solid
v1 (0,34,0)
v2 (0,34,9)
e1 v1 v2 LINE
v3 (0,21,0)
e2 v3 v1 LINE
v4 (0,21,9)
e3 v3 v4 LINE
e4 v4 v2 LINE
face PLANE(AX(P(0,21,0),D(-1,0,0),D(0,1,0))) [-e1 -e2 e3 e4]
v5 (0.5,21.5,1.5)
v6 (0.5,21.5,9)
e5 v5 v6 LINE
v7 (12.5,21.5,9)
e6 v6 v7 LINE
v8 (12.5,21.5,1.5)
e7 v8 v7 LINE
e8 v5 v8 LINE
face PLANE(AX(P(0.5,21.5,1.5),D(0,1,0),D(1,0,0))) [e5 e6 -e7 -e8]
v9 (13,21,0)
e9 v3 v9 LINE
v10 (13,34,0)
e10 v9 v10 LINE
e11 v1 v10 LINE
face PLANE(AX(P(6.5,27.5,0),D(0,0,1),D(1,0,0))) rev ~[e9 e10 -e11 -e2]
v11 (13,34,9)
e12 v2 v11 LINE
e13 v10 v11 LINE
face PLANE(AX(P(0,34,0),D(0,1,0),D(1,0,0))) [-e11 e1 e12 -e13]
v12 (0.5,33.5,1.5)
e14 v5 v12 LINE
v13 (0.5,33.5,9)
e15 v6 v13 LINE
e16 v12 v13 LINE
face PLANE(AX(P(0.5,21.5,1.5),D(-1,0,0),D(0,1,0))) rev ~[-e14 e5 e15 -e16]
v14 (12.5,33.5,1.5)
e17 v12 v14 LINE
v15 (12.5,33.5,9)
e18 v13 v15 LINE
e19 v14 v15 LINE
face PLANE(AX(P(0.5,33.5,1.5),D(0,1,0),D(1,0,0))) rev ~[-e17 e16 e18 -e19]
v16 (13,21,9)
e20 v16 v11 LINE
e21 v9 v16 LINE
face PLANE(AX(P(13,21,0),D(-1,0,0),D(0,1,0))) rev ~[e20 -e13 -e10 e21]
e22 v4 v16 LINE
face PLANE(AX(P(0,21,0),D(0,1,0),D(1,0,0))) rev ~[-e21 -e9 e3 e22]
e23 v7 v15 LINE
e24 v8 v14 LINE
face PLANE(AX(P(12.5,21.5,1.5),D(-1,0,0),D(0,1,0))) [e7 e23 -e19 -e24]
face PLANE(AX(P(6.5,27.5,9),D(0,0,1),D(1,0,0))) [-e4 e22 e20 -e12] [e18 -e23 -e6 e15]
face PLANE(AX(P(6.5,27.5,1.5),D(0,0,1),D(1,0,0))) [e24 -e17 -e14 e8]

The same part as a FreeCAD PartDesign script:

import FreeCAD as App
import Part
import Sketcher
from FreeCAD import Vector
Q = App.Units.Quantity


def add_polygon(sketch, points):
    """Adds a closed chain of lines whose ends are joined by coincident constraints."""
    first, n = sketch.GeometryCount, len(points)
    for a, b in zip(points, points[1:] + points[:1]):
        sketch.addGeometry(Part.LineSegment(App.Vector(*a, 0), App.Vector(*b, 0)), False)
    for i in range(n):
        sketch.addConstraint(Sketcher.Constraint("Coincident", first + i, 2, first + (i + 1) % n, 1))

doc = App.newDocument("Part")
params = doc.addObject("Spreadsheet::Sheet", "Params")
for row, (alias, value) in enumerate([
    ("sketch1_width", "12 mm"),
    ("pad1_length", "7.5 mm"),
    ("sketch2_width", "13 mm"),
    ("pad2_length", "9 mm"),
], start=1):
    params.set(f"A{row}", alias)
    params.set(f"B{row}", "=" + value)
    params.setAlias(f"B{row}", alias)

body = doc.addObject("PartDesign::Body", "Body")

sketch1 = doc.addObject("Sketcher::SketchObject", "Sketch")
body.addObject(sketch1)
sketch1.AttachmentSupport = (doc.XY_Plane, [""])
sketch1.MapMode = "FlatFace"
sketch1.AttachmentOffset = App.Placement(Vector(0, 0, 1.5), App.Rotation())
add_polygon(sketch1, [(0, 34), (0, 22), (12, 22), (12, 34)])
sketch1.addConstraint(Sketcher.Constraint("Vertical", 0))
sketch1.addConstraint(Sketcher.Constraint("Horizontal", 1))
sketch1.addConstraint(Sketcher.Constraint("Vertical", 2))
sketch1.addConstraint(Sketcher.Constraint("Horizontal", 3))
sketch1.addConstraint(Sketcher.Constraint("Equal", 3, 0))
sketch1.addConstraint(Sketcher.Constraint("DistanceX", 1, 1, 1, 2, Q("12 mm")))
sketch1.addConstraint(Sketcher.Constraint("DistanceX", -1, 1, 0, 2, Q("0.5 mm")))
sketch1.addConstraint(Sketcher.Constraint("DistanceY", -1, 1, 0, 2, Q("21.5 mm")))
sketch1.setExpression("Constraints[9]", "Params.sketch1_width")
pad1 = doc.addObject("PartDesign::Pad", "Pad")
body.addObject(pad1)
pad1.Profile = sketch1
pad1.setExpression("Length", "Params.pad1_length")
body2 = doc.addObject("PartDesign::Body", "Body001")

sketch2 = doc.addObject("Sketcher::SketchObject", "Sketch001")
body2.addObject(sketch2)
sketch2.AttachmentSupport = (doc.getObject("XY_Plane001"), [""])
sketch2.MapMode = "FlatFace"
add_polygon(sketch2, [(0, 34), (0, 21), (13, 21), (13, 34)])
sketch2.addConstraint(Sketcher.Constraint("Vertical", 0))
sketch2.addConstraint(Sketcher.Constraint("Horizontal", 1))
sketch2.addConstraint(Sketcher.Constraint("Vertical", 2))
sketch2.addConstraint(Sketcher.Constraint("Horizontal", 3))
sketch2.addConstraint(Sketcher.Constraint("PointOnObject", 0, 2, -2))
sketch2.addConstraint(Sketcher.Constraint("Equal", 3, 0))
sketch2.addConstraint(Sketcher.Constraint("DistanceX", 1, 1, 1, 2, Q("13 mm")))
sketch2.addConstraint(Sketcher.Constraint("DistanceY", -1, 1, 0, 2, Q("21 mm")))
sketch2.setExpression("Constraints[10]", "Params.sketch2_width")
pad2 = doc.addObject("PartDesign::Pad", "Pad001")
body2.addObject(pad2)
pad2.Profile = sketch2
pad2.setExpression("Length", "Params.pad2_length")
doc.recompute()

boolean = doc.addObject("PartDesign::Boolean", "Boolean")
body2.addObject(boolean)
boolean.Type = "Cut"
boolean.addObjects([body])

doc.recompute()
